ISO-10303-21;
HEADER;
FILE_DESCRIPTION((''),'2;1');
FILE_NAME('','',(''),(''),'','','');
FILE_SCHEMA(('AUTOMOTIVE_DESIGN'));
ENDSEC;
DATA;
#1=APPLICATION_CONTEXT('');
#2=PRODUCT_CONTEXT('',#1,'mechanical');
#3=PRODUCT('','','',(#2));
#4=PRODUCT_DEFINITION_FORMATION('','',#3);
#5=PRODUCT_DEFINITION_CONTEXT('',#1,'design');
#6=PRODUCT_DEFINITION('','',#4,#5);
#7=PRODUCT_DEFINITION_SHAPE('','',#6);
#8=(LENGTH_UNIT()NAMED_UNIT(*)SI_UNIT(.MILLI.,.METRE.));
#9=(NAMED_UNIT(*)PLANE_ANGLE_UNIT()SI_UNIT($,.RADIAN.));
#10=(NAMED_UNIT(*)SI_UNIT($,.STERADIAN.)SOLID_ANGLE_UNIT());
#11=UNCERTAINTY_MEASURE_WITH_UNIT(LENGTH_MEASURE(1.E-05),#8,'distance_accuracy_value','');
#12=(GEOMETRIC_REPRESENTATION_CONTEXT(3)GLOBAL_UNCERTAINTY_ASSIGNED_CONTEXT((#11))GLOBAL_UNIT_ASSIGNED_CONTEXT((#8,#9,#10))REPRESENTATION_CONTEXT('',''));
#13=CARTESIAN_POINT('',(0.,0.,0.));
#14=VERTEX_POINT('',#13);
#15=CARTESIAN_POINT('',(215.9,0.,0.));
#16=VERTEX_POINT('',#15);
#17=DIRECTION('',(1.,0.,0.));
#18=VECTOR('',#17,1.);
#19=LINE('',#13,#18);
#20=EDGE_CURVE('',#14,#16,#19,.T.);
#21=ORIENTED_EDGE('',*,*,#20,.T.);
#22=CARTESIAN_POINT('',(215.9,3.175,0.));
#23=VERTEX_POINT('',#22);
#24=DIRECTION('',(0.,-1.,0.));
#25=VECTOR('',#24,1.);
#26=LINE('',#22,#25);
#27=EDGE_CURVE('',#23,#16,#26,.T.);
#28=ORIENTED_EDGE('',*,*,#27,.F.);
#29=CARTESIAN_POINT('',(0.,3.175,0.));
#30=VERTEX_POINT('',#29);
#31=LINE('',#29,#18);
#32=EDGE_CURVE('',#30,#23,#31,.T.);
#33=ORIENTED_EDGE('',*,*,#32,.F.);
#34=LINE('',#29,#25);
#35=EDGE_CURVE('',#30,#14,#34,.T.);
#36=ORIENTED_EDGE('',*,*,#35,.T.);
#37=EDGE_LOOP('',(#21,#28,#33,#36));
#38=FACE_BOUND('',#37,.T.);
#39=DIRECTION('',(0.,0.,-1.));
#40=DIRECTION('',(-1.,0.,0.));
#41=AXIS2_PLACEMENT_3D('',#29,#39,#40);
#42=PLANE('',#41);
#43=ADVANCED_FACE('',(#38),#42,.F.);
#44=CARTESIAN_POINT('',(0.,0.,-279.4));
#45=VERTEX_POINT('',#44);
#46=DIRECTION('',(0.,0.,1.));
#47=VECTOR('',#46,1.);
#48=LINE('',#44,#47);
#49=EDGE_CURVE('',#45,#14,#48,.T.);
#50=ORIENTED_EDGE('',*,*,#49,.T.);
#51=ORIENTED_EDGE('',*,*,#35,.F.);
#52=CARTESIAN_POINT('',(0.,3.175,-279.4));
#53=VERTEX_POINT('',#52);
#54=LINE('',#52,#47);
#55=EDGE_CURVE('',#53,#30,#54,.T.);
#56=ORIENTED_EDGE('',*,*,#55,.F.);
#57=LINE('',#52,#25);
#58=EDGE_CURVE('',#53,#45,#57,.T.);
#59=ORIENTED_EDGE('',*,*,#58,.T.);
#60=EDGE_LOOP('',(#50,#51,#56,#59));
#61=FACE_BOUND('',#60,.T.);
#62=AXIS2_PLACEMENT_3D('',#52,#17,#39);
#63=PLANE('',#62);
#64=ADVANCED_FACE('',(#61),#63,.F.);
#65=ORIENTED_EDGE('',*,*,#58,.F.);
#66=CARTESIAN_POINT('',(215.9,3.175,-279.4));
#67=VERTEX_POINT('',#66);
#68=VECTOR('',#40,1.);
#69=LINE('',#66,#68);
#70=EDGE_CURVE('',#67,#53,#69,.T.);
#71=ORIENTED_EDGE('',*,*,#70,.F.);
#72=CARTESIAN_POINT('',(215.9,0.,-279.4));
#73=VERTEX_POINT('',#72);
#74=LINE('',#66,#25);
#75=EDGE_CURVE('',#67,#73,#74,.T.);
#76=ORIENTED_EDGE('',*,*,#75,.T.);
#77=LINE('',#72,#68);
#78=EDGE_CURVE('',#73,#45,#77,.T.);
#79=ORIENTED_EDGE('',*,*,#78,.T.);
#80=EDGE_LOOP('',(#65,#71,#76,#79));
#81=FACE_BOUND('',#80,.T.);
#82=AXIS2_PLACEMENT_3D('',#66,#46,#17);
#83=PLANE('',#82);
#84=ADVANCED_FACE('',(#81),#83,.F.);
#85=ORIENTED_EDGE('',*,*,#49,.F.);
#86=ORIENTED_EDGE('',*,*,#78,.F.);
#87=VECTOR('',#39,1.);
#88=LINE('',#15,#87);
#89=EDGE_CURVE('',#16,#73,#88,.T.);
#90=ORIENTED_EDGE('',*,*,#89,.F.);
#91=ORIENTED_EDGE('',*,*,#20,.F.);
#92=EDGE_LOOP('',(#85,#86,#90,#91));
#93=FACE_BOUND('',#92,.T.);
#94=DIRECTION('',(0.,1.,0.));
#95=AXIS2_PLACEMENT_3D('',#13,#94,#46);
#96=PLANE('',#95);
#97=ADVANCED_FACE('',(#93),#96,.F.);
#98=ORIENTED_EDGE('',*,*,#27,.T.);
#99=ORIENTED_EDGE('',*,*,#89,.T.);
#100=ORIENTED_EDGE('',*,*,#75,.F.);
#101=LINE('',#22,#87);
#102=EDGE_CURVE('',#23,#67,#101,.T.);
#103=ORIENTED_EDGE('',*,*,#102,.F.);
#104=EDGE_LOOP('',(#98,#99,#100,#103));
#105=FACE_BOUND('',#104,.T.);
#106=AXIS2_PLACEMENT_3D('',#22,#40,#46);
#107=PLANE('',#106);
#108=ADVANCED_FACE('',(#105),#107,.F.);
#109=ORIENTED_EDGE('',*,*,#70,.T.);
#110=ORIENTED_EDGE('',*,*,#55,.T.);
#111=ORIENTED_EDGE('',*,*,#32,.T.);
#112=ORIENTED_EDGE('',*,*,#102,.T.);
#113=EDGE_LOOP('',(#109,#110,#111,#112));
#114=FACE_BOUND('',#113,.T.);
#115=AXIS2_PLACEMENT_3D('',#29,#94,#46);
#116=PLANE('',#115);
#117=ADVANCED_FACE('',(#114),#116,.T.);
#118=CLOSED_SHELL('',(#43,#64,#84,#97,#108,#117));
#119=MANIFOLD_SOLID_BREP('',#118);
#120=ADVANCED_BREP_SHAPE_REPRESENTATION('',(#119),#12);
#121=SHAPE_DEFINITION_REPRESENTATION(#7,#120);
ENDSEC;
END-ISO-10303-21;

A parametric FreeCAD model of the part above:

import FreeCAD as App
import Part
import Sketcher
from FreeCAD import Vector
Q = App.Units.Quantity


def add_polygon(sketch, points):
    """Adds a closed chain of lines whose ends are joined by coincident constraints."""
    first, n = sketch.GeometryCount, len(points)
    for a, b in zip(points, points[1:] + points[:1]):
        sketch.addGeometry(Part.LineSegment(App.Vector(*a, 0), App.Vector(*b, 0)), False)
    for i in range(n):
        sketch.addConstraint(Sketcher.Constraint("Coincident", first + i, 2, first + (i + 1) % n, 1))

doc = App.newDocument("Part")
body = doc.addObject("PartDesign::Body", "Body")

# Sketch on XZ plane
sketch1 = body.newObject("Sketcher::SketchObject", "Sketch")
sketch1.AttachmentSupport = (doc.getObject("XZ_Plane"), [""])
sketch1.MapMode = "FlatFace"
add_polygon(sketch1, [(0, -279), (0, 0), (216, 0), (216, -279)])  # lines 0-3
sketch1.addConstraint(Sketcher.Constraint("Vertical", 0))
sketch1.addConstraint(Sketcher.Constraint("Horizontal", 1))
sketch1.addConstraint(Sketcher.Constraint("Vertical", 2))
sketch1.addConstraint(Sketcher.Constraint("Horizontal", 3))
sketch1.addConstraint(Sketcher.Constraint("Coincident", 0, 2, -1, 1))
sketch1.addConstraint(Sketcher.Constraint("DistanceY", 0, 1, 0, 2, Q("11 in")))
sketch1.addConstraint(Sketcher.Constraint("DistanceX", 1, 1, 1, 2, Q("8.5 in")))
pad1 = body.newObject("PartDesign::Pad", "Pad")
pad1.Profile = sketch1
pad1.Length = Q("0.125 in")
pad1.Reversed = True

doc.recompute()
